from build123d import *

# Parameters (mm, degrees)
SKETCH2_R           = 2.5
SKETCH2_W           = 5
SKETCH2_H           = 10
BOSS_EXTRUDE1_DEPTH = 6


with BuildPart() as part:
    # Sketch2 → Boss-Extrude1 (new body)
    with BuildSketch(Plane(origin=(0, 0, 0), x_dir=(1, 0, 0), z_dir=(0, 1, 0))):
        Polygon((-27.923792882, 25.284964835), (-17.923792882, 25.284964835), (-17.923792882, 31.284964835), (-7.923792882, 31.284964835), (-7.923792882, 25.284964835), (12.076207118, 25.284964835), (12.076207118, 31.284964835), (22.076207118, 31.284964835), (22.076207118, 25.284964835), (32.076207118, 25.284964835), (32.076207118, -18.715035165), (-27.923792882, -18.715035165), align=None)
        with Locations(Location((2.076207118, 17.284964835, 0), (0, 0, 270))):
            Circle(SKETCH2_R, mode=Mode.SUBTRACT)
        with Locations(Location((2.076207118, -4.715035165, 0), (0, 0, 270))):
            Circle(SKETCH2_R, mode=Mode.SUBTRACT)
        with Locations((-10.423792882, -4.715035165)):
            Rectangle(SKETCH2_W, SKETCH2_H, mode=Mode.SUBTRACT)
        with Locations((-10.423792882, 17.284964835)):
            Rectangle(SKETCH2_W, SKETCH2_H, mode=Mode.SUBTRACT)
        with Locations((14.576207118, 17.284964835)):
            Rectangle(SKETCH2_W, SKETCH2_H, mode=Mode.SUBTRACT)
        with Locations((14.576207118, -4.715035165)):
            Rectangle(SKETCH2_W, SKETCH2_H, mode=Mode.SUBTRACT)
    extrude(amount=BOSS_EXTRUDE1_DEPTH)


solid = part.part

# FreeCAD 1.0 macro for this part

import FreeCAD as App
import Part
import Sketcher
from FreeCAD import Vector
Q = App.Units.Quantity


def add_polygon(sketch, points):
    """Adds a closed chain of lines whose ends are joined by coincident constraints."""
    first, n = sketch.GeometryCount, len(points)
    for a, b in zip(points, points[1:] + points[:1]):
        sketch.addGeometry(Part.LineSegment(App.Vector(*a, 0), App.Vector(*b, 0)), False)
    for i in range(n):
        sketch.addConstraint(Sketcher.Constraint("Coincident", first + i, 2, first + (i + 1) % n, 1))

doc = App.newDocument("Part")
params = doc.addObject("Spreadsheet::Sheet", "Params")
for row, (alias, value) in enumerate([
    ("sketch1_diameter", "5 mm"),
    ("sketch1_width", "10 mm"),
    ("sketch1_width2", "60 mm"),
    ("sketch1_width3", "5 mm"),
    ("sketch1_height", "44 mm"),
    ("pad1_length", "6 mm"),
], start=1):
    params.set(f"A{row}", alias)
    params.set(f"B{row}", "=" + value)
    params.setAlias(f"B{row}", alias)

body = doc.addObject("PartDesign::Body", "Body")

# Sketch on XZ plane
sketch1 = body.newObject("Sketcher::SketchObject", "Sketch")
sketch1.AttachmentSupport = (doc.getObject("XZ_Plane"), [""])
sketch1.MapMode = "FlatFace"
add_polygon(sketch1, [(-17.9, -25.3), (-27.9, -25.3), (-27.9, 18.7), (32.1, 18.7), (32.1, -25.3), (22.1, -25.3), (22.1, -31.3), (12.1, -31.3), (12.1, -25.3), (-7.9, -25.3), (-7.9, -31.3), (-17.9, -31.3)])  # lines 0-11
add_polygon(sketch1, [(12.1, 9.7), (12.1, -0.3), (17.1, -0.3), (17.1, 9.7)])  # lines 12-15
sketch1.addGeometry(Part.Circle(Vector(2.1, 4.7, 0), Vector(0, 0, 1), 2.5), False)  # 16
add_polygon(sketch1, [(-12.9, 9.7), (-12.9, -0.3), (-7.9, -0.3), (-7.9, 9.7)])  # lines 17-20
add_polygon(sketch1, [(12.1, -12.3), (12.1, -22.3), (17.1, -22.3), (17.1, -12.3)])  # lines 21-24
sketch1.addGeometry(Part.Circle(Vector(2.1, -17.3, 0), Vector(0, 0, 1), 2.5), False)  # 25
add_polygon(sketch1, [(-12.9, -12.3), (-12.9, -22.3), (-7.9, -22.3), (-7.9, -12.3)])  # lines 26-29
sketch1.addConstraint([
    Sketcher.Constraint("Horizontal", 0),
    Sketcher.Constraint("Vertical", 1),
    Sketcher.Constraint("Horizontal", 2),
    Sketcher.Constraint("Vertical", 3),
    Sketcher.Constraint("Horizontal", 4),
    Sketcher.Constraint("Vertical", 5),
    Sketcher.Constraint("Horizontal", 6),
    Sketcher.Constraint("Vertical", 7),
    Sketcher.Constraint("Horizontal", 8),
    Sketcher.Constraint("Vertical", 9),
    Sketcher.Constraint("Horizontal", 10),
    Sketcher.Constraint("Vertical", 11),
    Sketcher.Constraint("Vertical", 12),
    Sketcher.Constraint("Horizontal", 13),
    Sketcher.Constraint("Vertical", 14),
    Sketcher.Constraint("Horizontal", 15),
    Sketcher.Constraint("Vertical", 17),
    Sketcher.Constraint("Horizontal", 18),
    Sketcher.Constraint("Vertical", 19),
    Sketcher.Constraint("Horizontal", 20),
    Sketcher.Constraint("Vertical", 21),
    Sketcher.Constraint("Horizontal", 22),
    Sketcher.Constraint("Vertical", 23),
    Sketcher.Constraint("Horizontal", 24),
    Sketcher.Constraint("Vertical", 26),
    Sketcher.Constraint("Horizontal", 27),
    Sketcher.Constraint("Vertical", 28),
    Sketcher.Constraint("Horizontal", 29),
    Sketcher.Constraint("Equal", 16, 25),
    Sketcher.Constraint("Horizontal", 0, 2, 3, 2),
    Sketcher.Constraint("Horizontal", 4, 2, 7, 2),
    Sketcher.Constraint("Horizontal", 6, 2, 9, 2),
    Sketcher.Constraint("Horizontal", 13, 2, 17, 2),
    Sketcher.Constraint("Horizontal", 15, 2, 19, 2),
    Sketcher.Constraint("Horizontal", 22, 2, 26, 2),
    Sketcher.Constraint("Horizontal", 24, 2, 28, 2),
    Sketcher.Constraint("Vertical", 16, 3, 25, 3),
    Sketcher.Constraint("Vertical", 7, 2, 12, 2),
    Sketcher.Constraint("Vertical", 9, 2, 18, 2),
    Sketcher.Constraint("Vertical", 15, 2, 21, 2),
    Sketcher.Constraint("Vertical", 14, 2, 22, 2),
    Sketcher.Constraint("Vertical", 20, 2, 26, 2),
    Sketcher.Constraint("Vertical", 19, 2, 27, 2),
    Sketcher.Constraint("Equal", 0, 4),
    Sketcher.Constraint("Equal", 4, 6),
    Sketcher.Constraint("Equal", 6, 10),
    Sketcher.Constraint("Equal", 15, 18),
    Sketcher.Constraint("Equal", 10, 12),
    Sketcher.Constraint("Equal", 19, 21),
    Sketcher.Constraint("Diameter", 16, Q("5 mm")),
    Sketcher.Constraint("DistanceX", 0, 2, 0, 1, Q("10 mm")),
    Sketcher.Constraint("DistanceX", 2, 1, 2, 2, Q("60 mm")),
    Sketcher.Constraint("DistanceX", 13, 1, 13, 2, Q("5 mm")),
    Sketcher.Constraint("DistanceY", 1, 1, 1, 2, Q("44 mm")),
    Sketcher.Constraint("DistanceY", 5, 2, 5, 1, Q("6 mm")),
    Sketcher.Constraint("DistanceY", 25, 3, 16, 3, Q("22 mm")),
    Sketcher.Constraint("DistanceX", 0, 2, 25, 3, Q("30 mm")),
    Sketcher.Constraint("DistanceY", 0, 2, 25, 3, Q("8 mm")),
    Sketcher.Constraint("DistanceY", 12, 2, 16, 3, Q("5 mm")),
    Sketcher.Constraint("DistanceY", 7, 2, 21, 2, Q("3 mm")),
    Sketcher.Constraint("DistanceX", -1, 1, 16, 3, Q("2.076207 mm")),
    Sketcher.Constraint("DistanceY", -1, 1, 16, 3, Q("4.715035 mm")),
])
sketch1.setExpression("Constraints[77]", "Params.sketch1_diameter")
sketch1.setExpression("Constraints[78]", "Params.sketch1_width")
sketch1.setExpression("Constraints[79]", "Params.sketch1_width2")
sketch1.setExpression("Constraints[80]", "Params.sketch1_width3")
sketch1.setExpression("Constraints[81]", "Params.sketch1_height")
pad1 = body.newObject("PartDesign::Pad", "Pad")
pad1.Profile = sketch1
pad1.setExpression("Length", "Params.pad1_length")
pad1.Reversed = True

doc.recompute()
